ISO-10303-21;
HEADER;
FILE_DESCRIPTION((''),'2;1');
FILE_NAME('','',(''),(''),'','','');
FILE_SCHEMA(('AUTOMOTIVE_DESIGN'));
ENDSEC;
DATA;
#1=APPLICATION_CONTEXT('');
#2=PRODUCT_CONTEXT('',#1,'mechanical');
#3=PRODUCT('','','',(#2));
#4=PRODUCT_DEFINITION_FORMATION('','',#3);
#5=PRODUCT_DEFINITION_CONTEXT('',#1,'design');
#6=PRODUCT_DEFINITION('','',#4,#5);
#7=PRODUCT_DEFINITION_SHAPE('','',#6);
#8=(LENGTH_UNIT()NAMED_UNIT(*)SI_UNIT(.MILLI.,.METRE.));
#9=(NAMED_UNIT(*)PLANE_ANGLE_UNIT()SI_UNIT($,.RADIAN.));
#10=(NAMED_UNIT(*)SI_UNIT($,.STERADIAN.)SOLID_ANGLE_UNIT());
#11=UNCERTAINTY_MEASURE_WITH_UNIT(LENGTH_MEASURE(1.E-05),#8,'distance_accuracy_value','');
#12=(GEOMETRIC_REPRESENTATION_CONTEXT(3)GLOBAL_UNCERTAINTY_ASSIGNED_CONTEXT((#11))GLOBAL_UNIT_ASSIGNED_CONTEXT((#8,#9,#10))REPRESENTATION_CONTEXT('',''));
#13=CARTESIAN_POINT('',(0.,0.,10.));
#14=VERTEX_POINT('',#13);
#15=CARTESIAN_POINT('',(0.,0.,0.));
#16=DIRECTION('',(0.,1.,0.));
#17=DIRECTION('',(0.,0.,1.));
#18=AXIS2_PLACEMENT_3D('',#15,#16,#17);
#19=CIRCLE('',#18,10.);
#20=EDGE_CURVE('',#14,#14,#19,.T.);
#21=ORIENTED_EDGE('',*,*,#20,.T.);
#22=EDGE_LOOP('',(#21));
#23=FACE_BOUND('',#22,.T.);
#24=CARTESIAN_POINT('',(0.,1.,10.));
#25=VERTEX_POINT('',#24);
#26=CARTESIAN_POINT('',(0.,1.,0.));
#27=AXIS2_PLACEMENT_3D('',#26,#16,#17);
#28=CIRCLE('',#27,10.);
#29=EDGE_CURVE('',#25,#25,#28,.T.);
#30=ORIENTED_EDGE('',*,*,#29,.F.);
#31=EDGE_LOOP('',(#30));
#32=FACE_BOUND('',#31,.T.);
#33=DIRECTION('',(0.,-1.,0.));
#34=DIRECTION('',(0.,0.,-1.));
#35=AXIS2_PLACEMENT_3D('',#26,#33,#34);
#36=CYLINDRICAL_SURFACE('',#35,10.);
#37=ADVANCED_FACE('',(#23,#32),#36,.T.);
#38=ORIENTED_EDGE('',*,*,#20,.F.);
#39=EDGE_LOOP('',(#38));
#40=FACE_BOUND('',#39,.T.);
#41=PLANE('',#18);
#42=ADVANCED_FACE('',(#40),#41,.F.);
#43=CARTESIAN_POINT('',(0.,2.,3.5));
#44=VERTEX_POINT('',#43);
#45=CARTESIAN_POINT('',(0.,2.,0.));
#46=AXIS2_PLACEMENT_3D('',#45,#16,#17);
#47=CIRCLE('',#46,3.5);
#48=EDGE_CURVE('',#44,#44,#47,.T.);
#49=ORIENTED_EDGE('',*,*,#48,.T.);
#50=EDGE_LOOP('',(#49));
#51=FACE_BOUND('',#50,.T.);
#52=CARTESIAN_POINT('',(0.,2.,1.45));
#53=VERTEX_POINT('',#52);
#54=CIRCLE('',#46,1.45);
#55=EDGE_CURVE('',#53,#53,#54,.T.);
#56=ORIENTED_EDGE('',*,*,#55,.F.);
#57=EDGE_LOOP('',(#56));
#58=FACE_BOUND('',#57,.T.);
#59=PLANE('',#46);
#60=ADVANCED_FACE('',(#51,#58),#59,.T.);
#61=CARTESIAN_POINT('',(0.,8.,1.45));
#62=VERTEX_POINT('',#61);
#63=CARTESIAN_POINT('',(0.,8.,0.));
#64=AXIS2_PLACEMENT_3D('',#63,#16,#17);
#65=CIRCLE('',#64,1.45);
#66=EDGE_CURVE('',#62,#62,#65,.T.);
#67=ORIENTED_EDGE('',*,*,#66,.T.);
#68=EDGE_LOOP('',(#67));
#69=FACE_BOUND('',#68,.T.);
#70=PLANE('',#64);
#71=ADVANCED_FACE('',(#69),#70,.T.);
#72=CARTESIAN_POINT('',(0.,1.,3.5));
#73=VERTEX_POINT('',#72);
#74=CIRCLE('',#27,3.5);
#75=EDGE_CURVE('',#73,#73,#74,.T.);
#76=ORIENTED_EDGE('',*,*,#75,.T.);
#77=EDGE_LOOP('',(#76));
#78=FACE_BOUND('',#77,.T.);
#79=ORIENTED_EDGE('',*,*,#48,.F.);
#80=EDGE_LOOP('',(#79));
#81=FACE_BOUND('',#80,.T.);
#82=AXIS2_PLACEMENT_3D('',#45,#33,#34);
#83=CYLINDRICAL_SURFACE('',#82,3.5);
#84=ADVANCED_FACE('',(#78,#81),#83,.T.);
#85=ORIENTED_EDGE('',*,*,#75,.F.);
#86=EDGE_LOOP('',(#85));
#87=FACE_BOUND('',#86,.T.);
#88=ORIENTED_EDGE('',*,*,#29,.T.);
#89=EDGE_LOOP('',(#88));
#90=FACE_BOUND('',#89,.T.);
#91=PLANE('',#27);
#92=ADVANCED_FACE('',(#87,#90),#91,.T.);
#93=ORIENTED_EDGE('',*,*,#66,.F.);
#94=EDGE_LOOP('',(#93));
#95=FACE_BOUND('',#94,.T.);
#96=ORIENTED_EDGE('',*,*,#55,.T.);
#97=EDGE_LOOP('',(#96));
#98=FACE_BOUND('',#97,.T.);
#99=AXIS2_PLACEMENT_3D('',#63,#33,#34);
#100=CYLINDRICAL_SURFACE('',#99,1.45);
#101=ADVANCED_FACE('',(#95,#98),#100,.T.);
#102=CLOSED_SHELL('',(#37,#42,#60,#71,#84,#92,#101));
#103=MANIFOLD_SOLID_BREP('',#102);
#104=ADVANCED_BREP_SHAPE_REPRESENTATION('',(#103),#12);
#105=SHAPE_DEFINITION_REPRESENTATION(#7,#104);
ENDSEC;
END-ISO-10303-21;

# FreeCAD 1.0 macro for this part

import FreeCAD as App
import Part
import Sketcher

V = App.Vector

doc = App.newDocument("Part")
body = doc.addObject("PartDesign::Body", "Body")

sketch1 = body.newObject("Sketcher::SketchObject", "Sketch")
sketch1.AttachmentSupport = (doc.getObject("XZ_Plane"), [""])
sketch1.MapMode = "FlatFace"
sketch1.addGeometry(Part.Circle(V(0, 0, 0), V(0, 0, 1), 10), False)
sketch1.addConstraint([
    Sketcher.Constraint("Coincident", 0, 3, -1, 1),
    Sketcher.Constraint("Diameter", 0, 20.0),
])
pad1 = body.newObject("PartDesign::Pad", "Pad")
pad1.Profile = sketch1
pad1.Length = 1
pad1.Reversed = True

sketch2 = body.newObject("Sketcher::SketchObject", "Sketch001")
sketch2.AttachmentSupport = (doc.getObject("XZ_Plane"), [""])
sketch2.MapMode = "FlatFace"
sketch2.AttachmentOffset = App.Placement(V(0, 0, -1), App.Rotation())
sketch2.addGeometry(Part.Circle(V(0, 0, 0), V(0, 0, 1), 1.4), False)
sketch2.addConstraint([
    Sketcher.Constraint("Coincident", 0, 3, -1, 1),
    Sketcher.Constraint("Diameter", 0, 2.9),
])
pad2 = body.newObject("PartDesign::Pad", "Pad001")
pad2.Profile = sketch2
pad2.Length = 7
pad2.Reversed = True

sketch3 = body.newObject("Sketcher::SketchObject", "Sketch002")
sketch3.AttachmentSupport = (doc.getObject("XZ_Plane"), [""])
sketch3.MapMode = "FlatFace"
sketch3.AttachmentOffset = App.Placement(V(0, 0, -1), App.Rotation())
sketch3.addGeometry(Part.Circle(V(0, 0, 0), V(0, 0, 1), 3.5), False)
sketch3.addConstraint([
    Sketcher.Constraint("Coincident", 0, 3, -1, 1),
    Sketcher.Constraint("Diameter", 0, 7.0),
])
pad3 = body.newObject("PartDesign::Pad", "Pad002")
pad3.Profile = sketch3
pad3.Length = 1
pad3.Reversed = True

doc.recompute()
